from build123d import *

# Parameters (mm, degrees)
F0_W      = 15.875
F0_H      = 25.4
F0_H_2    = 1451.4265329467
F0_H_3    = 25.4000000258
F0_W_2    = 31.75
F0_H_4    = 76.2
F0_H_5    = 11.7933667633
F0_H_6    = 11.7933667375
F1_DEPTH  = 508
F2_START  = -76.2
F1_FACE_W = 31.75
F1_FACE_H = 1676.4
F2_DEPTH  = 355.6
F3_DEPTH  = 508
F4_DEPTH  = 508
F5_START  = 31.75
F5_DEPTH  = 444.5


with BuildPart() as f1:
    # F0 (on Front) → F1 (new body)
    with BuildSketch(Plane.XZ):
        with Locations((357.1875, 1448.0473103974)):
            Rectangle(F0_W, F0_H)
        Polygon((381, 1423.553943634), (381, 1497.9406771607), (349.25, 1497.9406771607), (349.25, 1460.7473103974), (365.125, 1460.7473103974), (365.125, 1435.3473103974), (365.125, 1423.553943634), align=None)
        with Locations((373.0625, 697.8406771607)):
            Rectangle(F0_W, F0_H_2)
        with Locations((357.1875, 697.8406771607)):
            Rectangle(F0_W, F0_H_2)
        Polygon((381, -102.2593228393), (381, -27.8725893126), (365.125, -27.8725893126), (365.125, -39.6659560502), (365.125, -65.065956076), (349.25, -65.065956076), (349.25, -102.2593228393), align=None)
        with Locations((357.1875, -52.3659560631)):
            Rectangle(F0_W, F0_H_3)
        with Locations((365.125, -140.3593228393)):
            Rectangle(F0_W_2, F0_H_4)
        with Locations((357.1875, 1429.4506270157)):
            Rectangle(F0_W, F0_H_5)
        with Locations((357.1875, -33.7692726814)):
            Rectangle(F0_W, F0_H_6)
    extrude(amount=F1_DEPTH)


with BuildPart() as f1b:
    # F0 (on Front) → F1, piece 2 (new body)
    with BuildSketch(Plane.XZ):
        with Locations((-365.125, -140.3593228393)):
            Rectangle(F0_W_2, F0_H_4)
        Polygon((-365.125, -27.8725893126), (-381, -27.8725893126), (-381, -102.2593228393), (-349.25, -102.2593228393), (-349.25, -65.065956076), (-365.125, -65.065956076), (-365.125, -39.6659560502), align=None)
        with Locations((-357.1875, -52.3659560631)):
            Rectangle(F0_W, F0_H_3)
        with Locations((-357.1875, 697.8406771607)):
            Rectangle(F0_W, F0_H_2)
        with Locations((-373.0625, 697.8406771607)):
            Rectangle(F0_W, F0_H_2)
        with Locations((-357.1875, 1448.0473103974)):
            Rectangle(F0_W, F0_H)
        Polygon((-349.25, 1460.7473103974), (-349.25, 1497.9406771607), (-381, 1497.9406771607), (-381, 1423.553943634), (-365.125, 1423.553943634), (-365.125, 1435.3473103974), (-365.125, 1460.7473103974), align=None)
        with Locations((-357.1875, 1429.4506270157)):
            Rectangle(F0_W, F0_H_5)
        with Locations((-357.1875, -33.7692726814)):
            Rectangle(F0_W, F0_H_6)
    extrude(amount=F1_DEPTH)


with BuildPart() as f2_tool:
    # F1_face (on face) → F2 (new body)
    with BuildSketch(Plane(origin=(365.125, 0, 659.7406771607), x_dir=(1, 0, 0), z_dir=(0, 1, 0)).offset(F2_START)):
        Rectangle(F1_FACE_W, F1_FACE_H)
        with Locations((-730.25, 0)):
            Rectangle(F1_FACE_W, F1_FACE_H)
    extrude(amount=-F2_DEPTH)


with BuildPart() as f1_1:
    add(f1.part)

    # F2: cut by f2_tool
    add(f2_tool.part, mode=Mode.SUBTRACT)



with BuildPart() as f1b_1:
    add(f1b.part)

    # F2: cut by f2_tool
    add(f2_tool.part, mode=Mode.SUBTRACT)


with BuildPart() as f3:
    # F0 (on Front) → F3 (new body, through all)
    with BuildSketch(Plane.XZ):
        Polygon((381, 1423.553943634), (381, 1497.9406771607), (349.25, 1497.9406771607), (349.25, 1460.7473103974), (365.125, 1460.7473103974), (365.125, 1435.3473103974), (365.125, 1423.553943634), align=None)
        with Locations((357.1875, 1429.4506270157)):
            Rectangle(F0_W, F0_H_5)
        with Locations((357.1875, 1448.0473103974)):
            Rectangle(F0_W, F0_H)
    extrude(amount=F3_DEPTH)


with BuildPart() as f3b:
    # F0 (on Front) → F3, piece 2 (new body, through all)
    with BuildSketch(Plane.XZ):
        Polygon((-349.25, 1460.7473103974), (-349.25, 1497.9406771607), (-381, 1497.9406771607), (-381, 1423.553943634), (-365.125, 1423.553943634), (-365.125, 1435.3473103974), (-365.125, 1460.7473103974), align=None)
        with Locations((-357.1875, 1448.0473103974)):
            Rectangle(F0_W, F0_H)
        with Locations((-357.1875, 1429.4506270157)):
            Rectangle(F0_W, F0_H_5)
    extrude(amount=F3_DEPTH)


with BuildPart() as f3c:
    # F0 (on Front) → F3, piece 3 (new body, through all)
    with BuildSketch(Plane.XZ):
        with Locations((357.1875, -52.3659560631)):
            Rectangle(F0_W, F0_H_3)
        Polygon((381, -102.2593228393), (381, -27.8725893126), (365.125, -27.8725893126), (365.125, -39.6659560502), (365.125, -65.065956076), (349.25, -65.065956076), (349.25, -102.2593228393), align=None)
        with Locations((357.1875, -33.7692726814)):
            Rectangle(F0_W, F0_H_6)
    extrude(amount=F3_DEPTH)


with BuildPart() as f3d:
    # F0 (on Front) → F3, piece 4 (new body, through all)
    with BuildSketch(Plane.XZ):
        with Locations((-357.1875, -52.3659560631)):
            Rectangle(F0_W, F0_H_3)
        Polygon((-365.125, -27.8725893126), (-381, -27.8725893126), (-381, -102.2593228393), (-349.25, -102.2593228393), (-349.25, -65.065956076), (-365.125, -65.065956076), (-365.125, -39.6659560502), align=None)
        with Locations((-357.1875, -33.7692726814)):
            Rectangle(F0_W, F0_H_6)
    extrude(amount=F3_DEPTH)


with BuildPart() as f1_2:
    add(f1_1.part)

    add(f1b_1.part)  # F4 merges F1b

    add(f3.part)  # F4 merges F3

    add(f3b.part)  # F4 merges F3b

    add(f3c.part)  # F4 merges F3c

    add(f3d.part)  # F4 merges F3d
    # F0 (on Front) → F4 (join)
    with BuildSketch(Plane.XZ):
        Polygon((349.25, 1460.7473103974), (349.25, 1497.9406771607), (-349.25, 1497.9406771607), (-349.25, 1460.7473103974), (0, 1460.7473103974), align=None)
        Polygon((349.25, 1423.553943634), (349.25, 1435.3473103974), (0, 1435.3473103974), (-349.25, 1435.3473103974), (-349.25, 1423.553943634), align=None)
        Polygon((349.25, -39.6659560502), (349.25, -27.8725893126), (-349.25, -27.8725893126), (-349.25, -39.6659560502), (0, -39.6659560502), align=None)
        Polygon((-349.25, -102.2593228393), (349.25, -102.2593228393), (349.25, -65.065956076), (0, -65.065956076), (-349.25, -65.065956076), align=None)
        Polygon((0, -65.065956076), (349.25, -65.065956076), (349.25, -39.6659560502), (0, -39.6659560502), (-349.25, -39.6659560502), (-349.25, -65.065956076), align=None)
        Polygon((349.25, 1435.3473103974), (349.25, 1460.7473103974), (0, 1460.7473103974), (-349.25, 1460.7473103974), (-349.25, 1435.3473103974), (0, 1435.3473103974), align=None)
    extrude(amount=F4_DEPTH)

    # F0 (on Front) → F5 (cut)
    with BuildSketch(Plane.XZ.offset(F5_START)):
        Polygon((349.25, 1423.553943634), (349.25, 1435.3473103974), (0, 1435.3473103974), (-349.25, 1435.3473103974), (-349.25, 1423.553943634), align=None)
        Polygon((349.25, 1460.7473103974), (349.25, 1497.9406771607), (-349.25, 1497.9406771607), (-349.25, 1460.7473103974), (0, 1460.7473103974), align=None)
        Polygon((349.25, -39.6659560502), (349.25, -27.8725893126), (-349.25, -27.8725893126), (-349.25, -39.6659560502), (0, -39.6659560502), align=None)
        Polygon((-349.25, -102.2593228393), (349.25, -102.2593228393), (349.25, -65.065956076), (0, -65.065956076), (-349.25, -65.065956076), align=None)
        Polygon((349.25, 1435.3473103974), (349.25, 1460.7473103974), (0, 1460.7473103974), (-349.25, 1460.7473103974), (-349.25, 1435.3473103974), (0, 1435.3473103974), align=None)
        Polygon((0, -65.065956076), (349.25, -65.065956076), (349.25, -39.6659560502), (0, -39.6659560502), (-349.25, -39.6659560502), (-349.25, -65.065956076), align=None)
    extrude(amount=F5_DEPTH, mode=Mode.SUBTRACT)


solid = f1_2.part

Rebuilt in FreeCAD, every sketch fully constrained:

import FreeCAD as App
import Part
import Sketcher
from FreeCAD import Vector
Q = App.Units.Quantity

doc = App.newDocument("Part")
body = doc.addObject("PartDesign::Body", "Body")

# Sketch on XZ plane
sketch1 = body.newObject("Sketcher::SketchObject", "Sketch")
sketch1.AttachmentSupport = (doc.getObject("XZ_Plane"), [""])
sketch1.MapMode = "FlatFace"
sketch1.addGeometry(Part.LineSegment(Vector(349, -178, 0), Vector(381, -178, 0)), False)
sketch1.addGeometry(Part.LineSegment(Vector(381, -178, 0), Vector(381, 1498, 0)), False)
sketch1.addGeometry(Part.LineSegment(Vector(381, 1498, 0), Vector(349, 1498, 0)), False)
sketch1.addGeometry(Part.LineSegment(Vector(349, 1498, 0), Vector(349, -178, 0)), False)
sketch1.addConstraint(Sketcher.Constraint("Coincident", 0, 2, 1, 1))
sketch1.addConstraint(Sketcher.Constraint("Coincident", 1, 2, 2, 1))
sketch1.addConstraint(Sketcher.Constraint("Coincident", 2, 2, 3, 1))
sketch1.addConstraint(Sketcher.Constraint("Coincident", 3, 2, 0, 1))
sketch1.addConstraint(Sketcher.Constraint("Horizontal", 0))
sketch1.addConstraint(Sketcher.Constraint("Vertical", 1))
sketch1.addConstraint(Sketcher.Constraint("Horizontal", 2))
sketch1.addConstraint(Sketcher.Constraint("Vertical", 3))
sketch1.addConstraint(Sketcher.Constraint("DistanceY", 1, 1, 1, 2, Q("66 in")))
sketch1.addConstraint(Sketcher.Constraint("DistanceX", -1, 1, 0, 2, Q("15 in")))
sketch1.addConstraint(Sketcher.Constraint("DistanceX", 0, 1, 0, 2, Q("1.25 in")))
sketch1.addConstraint(Sketcher.Constraint("DistanceY", 0, 2, -1, 1, 178.459323))
pad1 = body.newObject("PartDesign::Pad", "Pad")
pad1.Profile = sketch1
pad1.Length = Q("20 in")
body2 = doc.addObject("PartDesign::Body", "Body001")

# Sketch on XZ plane
sketch2 = body2.newObject("Sketcher::SketchObject", "Sketch001")
sketch2.AttachmentSupport = (doc.getObject("XZ_Plane001"), [""])
sketch2.MapMode = "FlatFace"
sketch2.addGeometry(Part.LineSegment(Vector(-381, -178, 0), Vector(-349, -178, 0)), False)
sketch2.addGeometry(Part.LineSegment(Vector(-349, -178, 0), Vector(-349, 1498, 0)), False)
sketch2.addGeometry(Part.LineSegment(Vector(-349, 1498, 0), Vector(-381, 1498, 0)), False)
sketch2.addGeometry(Part.LineSegment(Vector(-381, 1498, 0), Vector(-381, -178, 0)), False)
sketch2.addConstraint(Sketcher.Constraint("Coincident", 0, 2, 1, 1))
sketch2.addConstraint(Sketcher.Constraint("Coincident", 1, 2, 2, 1))
sketch2.addConstraint(Sketcher.Constraint("Coincident", 2, 2, 3, 1))
sketch2.addConstraint(Sketcher.Constraint("Coincident", 3, 2, 0, 1))
sketch2.addConstraint(Sketcher.Constraint("Horizontal", 0))
sketch2.addConstraint(Sketcher.Constraint("Vertical", 1))
sketch2.addConstraint(Sketcher.Constraint("Horizontal", 2))
sketch2.addConstraint(Sketcher.Constraint("Vertical", 3))
sketch2.addConstraint(Sketcher.Constraint("DistanceY", 1, 1, 1, 2, Q("66 in")))
sketch2.addConstraint(Sketcher.Constraint("DistanceX", 2, 2, -1, 1, Q("15 in")))
sketch2.addConstraint(Sketcher.Constraint("DistanceX", 0, 1, 0, 2, Q("1.25 in")))
sketch2.addConstraint(Sketcher.Constraint("DistanceY", 0, 2, -1, 1, 178.459323))
pad2 = body2.newObject("PartDesign::Pad", "Pad001")
pad2.Profile = sketch2
pad2.Length = Q("20 in")
body3 = doc.addObject("PartDesign::Body", "Body002")
body3.AllowCompound = True

# Sketch on XZ plane
sketch3 = body3.newObject("Sketcher::SketchObject", "Sketch002")
sketch3.AttachmentSupport = (doc.getObject("XZ_Plane002"), [""])
sketch3.MapMode = "FlatFace"
sketch3.AttachmentOffset = App.Placement(Vector(0, 0, 3 * 25.4), App.Rotation())
sketch3.addGeometry(Part.LineSegment(Vector(349, -178, 0), Vector(349, 1498, 0)), False)
sketch3.addGeometry(Part.LineSegment(Vector(349, 1498, 0), Vector(381, 1498, 0)), False)
sketch3.addGeometry(Part.LineSegment(Vector(381, 1498, 0), Vector(381, -178, 0)), False)
sketch3.addGeometry(Part.LineSegment(Vector(381, -178, 0), Vector(349, -178, 0)), False)
sketch3.addGeometry(Part.LineSegment(Vector(-381, -178, 0), Vector(-381, 1498, 0)), False)
sketch3.addGeometry(Part.LineSegment(Vector(-381, 1498, 0), Vector(-349, 1498, 0)), False)
sketch3.addGeometry(Part.LineSegment(Vector(-349, 1498, 0), Vector(-349, -178, 0)), False)
sketch3.addGeometry(Part.LineSegment(Vector(-349, -178, 0), Vector(-381, -178, 0)), False)
sketch3.addConstraint(Sketcher.Constraint("Coincident", 0, 2, 1, 1))
sketch3.addConstraint(Sketcher.Constraint("Coincident", 1, 2, 2, 1))
sketch3.addConstraint(Sketcher.Constraint("Coincident", 2, 2, 3, 1))
sketch3.addConstraint(Sketcher.Constraint("Coincident", 3, 2, 0, 1))
sketch3.addConstraint(Sketcher.Constraint("Coincident", 4, 2, 5, 1))
sketch3.addConstraint(Sketcher.Constraint("Coincident", 5, 2, 6, 1))
sketch3.addConstraint(Sketcher.Constraint("Coincident", 6, 2, 7, 1))
sketch3.addConstraint(Sketcher.Constraint("Coincident", 7, 2, 4, 1))
sketch3.addConstraint(Sketcher.Constraint("Vertical", 0))
sketch3.addConstraint(Sketcher.Constraint("Horizontal", 1))
sketch3.addConstraint(Sketcher.Constraint("Vertical", 2))
sketch3.addConstraint(Sketcher.Constraint("Horizontal", 3))
sketch3.addConstraint(Sketcher.Constraint("Vertical", 4))
sketch3.addConstraint(Sketcher.Constraint("Horizontal", 5))
sketch3.addConstraint(Sketcher.Constraint("Vertical", 6))
sketch3.addConstraint(Sketcher.Constraint("Horizontal", 7))
sketch3.addConstraint(Sketcher.Constraint("Symmetric", 1, 2, 4, 2, -2))
sketch3.addConstraint(Sketcher.Constraint("Symmetric", 3, 2, 6, 2, -2))
sketch3.addConstraint(Sketcher.Constraint("DistanceY", 0, 1, 0, 2, Q("66 in")))
sketch3.addConstraint(Sketcher.Constraint("DistanceX", -1, 1, 1, 2, Q("15 in")))
sketch3.addConstraint(Sketcher.Constraint("DistanceX", 1, 1, 1, 2, Q("1.25 in")))
sketch3.addConstraint(Sketcher.Constraint("DistanceY", -1, 1, 0, 2, 1497.940677))
pad3 = body3.newObject("PartDesign::Pad", "Pad002")
pad3.Profile = sketch3
pad3.Length = Q("14 in")
body.AllowCompound = True
doc.recompute()

body4 = doc.addObject("PartDesign::Body", "Body003")
body4.BaseFeature = body3
boolean = body.newObject("PartDesign::Boolean", "Boolean")
boolean.Type = "Cut"
boolean.addObjects([body4])
doc.recompute()
body2.AllowCompound = True
doc.recompute()

boolean2 = body2.newObject("PartDesign::Boolean", "Boolean001")
boolean2.Type = "Cut"
boolean2.addObjects([body3])
body5 = doc.addObject("PartDesign::Body", "Body004")

# Sketch on XZ plane
sketch4 = body5.newObject("Sketcher::SketchObject", "Sketch003")
sketch4.AttachmentSupport = (doc.getObject("XZ_Plane004"), [""])
sketch4.MapMode = "FlatFace"
sketch4.addGeometry(Part.LineSegment(Vector(381, 1424, 0), Vector(381, 1498, 0)), False)
sketch4.addGeometry(Part.LineSegment(Vector(381, 1498, 0), Vector(349, 1498, 0)), False)
sketch4.addGeometry(Part.LineSegment(Vector(349, 1498, 0), Vector(349, 1424, 0)), False)
sketch4.addGeometry(Part.LineSegment(Vector(349, 1424, 0), Vector(365, 1424, 0)), False)
sketch4.addGeometry(Part.LineSegment(Vector(365, 1424, 0), Vector(381, 1424, 0)), False)
sketch4.addConstraint(Sketcher.Constraint("Coincident", 0, 2, 1, 1))
sketch4.addConstraint(Sketcher.Constraint("Coincident", 1, 2, 2, 1))
sketch4.addConstraint(Sketcher.Constraint("Coincident", 2, 2, 3, 1))
sketch4.addConstraint(Sketcher.Constraint("Coincident", 3, 2, 4, 1))
sketch4.addConstraint(Sketcher.Constraint("Coincident", 4, 2, 0, 1))
sketch4.addConstraint(Sketcher.Constraint("Vertical", 0))
sketch4.addConstraint(Sketcher.Constraint("Horizontal", 1))
sketch4.addConstraint(Sketcher.Constraint("Vertical", 2))
sketch4.addConstraint(Sketcher.Constraint("Horizontal", 3))
sketch4.addConstraint(Sketcher.Constraint("Horizontal", 4))
sketch4.addConstraint(Sketcher.Constraint("Equal", 3, 4))
sketch4.addConstraint(Sketcher.Constraint("DistanceX", -1, 1, 0, 2, Q("15 in")))
sketch4.addConstraint(Sketcher.Constraint("DistanceX", 1, 2, 1, 1, Q("1.25 in")))
sketch4.addConstraint(Sketcher.Constraint("DistanceY", 0, 1, 0, 2, 74.386734))
sketch4.addConstraint(Sketcher.Constraint("DistanceY", -1, 1, 0, 2, 1497.940677))
pad4 = body5.newObject("PartDesign::Pad", "Pad003")
pad4.Profile = sketch4
pad4.Length = Q("20 in")
body6 = doc.addObject("PartDesign::Body", "Body005")

# Sketch on XZ plane
sketch5 = body6.newObject("Sketcher::SketchObject", "Sketch004")
sketch5.AttachmentSupport = (doc.getObject("XZ_Plane005"), [""])
sketch5.MapMode = "FlatFace"
sketch5.addGeometry(Part.LineSegment(Vector(-349, 1498, 0), Vector(-381, 1498, 0)), False)
sketch5.addGeometry(Part.LineSegment(Vector(-381, 1498, 0), Vector(-381, 1424, 0)), False)
sketch5.addGeometry(Part.LineSegment(Vector(-381, 1424, 0), Vector(-365, 1424, 0)), False)
sketch5.addGeometry(Part.LineSegment(Vector(-365, 1424, 0), Vector(-349, 1424, 0)), False)
sketch5.addGeometry(Part.LineSegment(Vector(-349, 1424, 0), Vector(-349, 1498, 0)), False)
sketch5.addConstraint(Sketcher.Constraint("Coincident", 0, 2, 1, 1))
sketch5.addConstraint(Sketcher.Constraint("Coincident", 1, 2, 2, 1))
sketch5.addConstraint(Sketcher.Constraint("Coincident", 2, 2, 3, 1))
sketch5.addConstraint(Sketcher.Constraint("Coincident", 3, 2, 4, 1))
sketch5.addConstraint(Sketcher.Constraint("Coincident", 4, 2, 0, 1))
sketch5.addConstraint(Sketcher.Constraint("Horizontal", 0))
sketch5.addConstraint(Sketcher.Constraint("Vertical", 1))
sketch5.addConstraint(Sketcher.Constraint("Horizontal", 2))
sketch5.addConstraint(Sketcher.Constraint("Horizontal", 3))
sketch5.addConstraint(Sketcher.Constraint("Vertical", 4))
sketch5.addConstraint(Sketcher.Constraint("Equal", 2, 3))
sketch5.addConstraint(Sketcher.Constraint("DistanceX", 0, 2, -1, 1, Q("15 in")))
sketch5.addConstraint(Sketcher.Constraint("DistanceX", 0, 2, 0, 1, Q("1.25 in")))
sketch5.addConstraint(Sketcher.Constraint("DistanceY", 1, 2, 1, 1, 74.386734))
sketch5.addConstraint(Sketcher.Constraint("DistanceY", -1, 1, 0, 2, 1497.940677))
pad5 = body6.newObject("PartDesign::Pad", "Pad004")
pad5.Profile = sketch5
pad5.Length = Q("20 in")
body7 = doc.addObject("PartDesign::Body", "Body006")

# Sketch on XZ plane
sketch6 = body7.newObject("Sketcher::SketchObject", "Sketch005")
sketch6.AttachmentSupport = (doc.getObject("XZ_Plane006"), [""])
sketch6.MapMode = "FlatFace"
sketch6.addGeometry(Part.LineSegment(Vector(349, -102, 0), Vector(381, -102, 0)), False)
sketch6.addGeometry(Part.LineSegment(Vector(381, -102, 0), Vector(381, -28, 0)), False)
sketch6.addGeometry(Part.LineSegment(Vector(381, -28, 0), Vector(365, -28, 0)), False)
sketch6.addGeometry(Part.LineSegment(Vector(365, -28, 0), Vector(349, -28, 0)), False)
sketch6.addGeometry(Part.LineSegment(Vector(349, -28, 0), Vector(349, -102, 0)), False)
sketch6.addConstraint(Sketcher.Constraint("Coincident", 0, 2, 1, 1))
sketch6.addConstraint(Sketcher.Constraint("Coincident", 1, 2, 2, 1))
sketch6.addConstraint(Sketcher.Constraint("Coincident", 2, 2, 3, 1))
sketch6.addConstraint(Sketcher.Constraint("Coincident", 3, 2, 4, 1))
sketch6.addConstraint(Sketcher.Constraint("Coincident", 4, 2, 0, 1))
sketch6.addConstraint(Sketcher.Constraint("Horizontal", 0))
sketch6.addConstraint(Sketcher.Constraint("Vertical", 1))
sketch6.addConstraint(Sketcher.Constraint("Horizontal", 2))
sketch6.addConstraint(Sketcher.Constraint("Horizontal", 3))
sketch6.addConstraint(Sketcher.Constraint("Vertical", 4))
sketch6.addConstraint(Sketcher.Constraint("Equal", 2, 3))
sketch6.addConstraint(Sketcher.Constraint("DistanceX", -1, 1, 0, 2, Q("15 in")))
sketch6.addConstraint(Sketcher.Constraint("DistanceX", 0, 1, 0, 2, Q("1.25 in")))
sketch6.addConstraint(Sketcher.Constraint("DistanceY", 1, 1, 1, 2, 74.386734))
sketch6.addConstraint(Sketcher.Constraint("DistanceY", 1, 2, -1, 1, 27.872589))
pad6 = body7.newObject("PartDesign::Pad", "Pad005")
pad6.Profile = sketch6
pad6.Length = Q("20 in")
body8 = doc.addObject("PartDesign::Body", "Body007")

# Sketch on XZ plane
sketch7 = body8.newObject("Sketcher::SketchObject", "Sketch006")
sketch7.AttachmentSupport = (doc.getObject("XZ_Plane007"), [""])
sketch7.MapMode = "FlatFace"
sketch7.addGeometry(Part.LineSegment(Vector(-365, -28, 0), Vector(-381, -28, 0)), False)
sketch7.addGeometry(Part.LineSegment(Vector(-381, -28, 0), Vector(-381, -102, 0)), False)
sketch7.addGeometry(Part.LineSegment(Vector(-381, -102, 0), Vector(-349, -102, 0)), False)
sketch7.addGeometry(Part.LineSegment(Vector(-349, -102, 0), Vector(-349, -28, 0)), False)
sketch7.addGeometry(Part.LineSegment(Vector(-349, -28, 0), Vector(-365, -28, 0)), False)
sketch7.addConstraint(Sketcher.Constraint("Coincident", 0, 2, 1, 1))
sketch7.addConstraint(Sketcher.Constraint("Coincident", 1, 2, 2, 1))
sketch7.addConstraint(Sketcher.Constraint("Coincident", 2, 2, 3, 1))
sketch7.addConstraint(Sketcher.Constraint("Coincident", 3, 2, 4, 1))
sketch7.addConstraint(Sketcher.Constraint("Coincident", 4, 2, 0, 1))
sketch7.addConstraint(Sketcher.Constraint("Horizontal", 0))
sketch7.addConstraint(Sketcher.Constraint("Vertical", 1))
sketch7.addConstraint(Sketcher.Constraint("Horizontal", 2))
sketch7.addConstraint(Sketcher.Constraint("Vertical", 3))
sketch7.addConstraint(Sketcher.Constraint("Horizontal", 4))
sketch7.addConstraint(Sketcher.Constraint("Equal", 0, 4))
sketch7.addConstraint(Sketcher.Constraint("DistanceX", 0, 2, -1, 1, Q("15 in")))
sketch7.addConstraint(Sketcher.Constraint("DistanceX", 2, 1, 2, 2, Q("1.25 in")))
sketch7.addConstraint(Sketcher.Constraint("DistanceY", 1, 2, 1, 1, 74.386734))
sketch7.addConstraint(Sketcher.Constraint("DistanceY", 0, 2, -1, 1, 27.872589))
pad7 = body8.newObject("PartDesign::Pad", "Pad006")
pad7.Profile = sketch7
pad7.Length = Q("20 in")
body.AllowCompound = True
doc.recompute()

boolean3 = body.newObject("PartDesign::Boolean", "Boolean002")
boolean3.Type = "Fuse"
boolean3.addObjects([body2])
doc.recompute()

boolean4 = body.newObject("PartDesign::Boolean", "Boolean003")
boolean4.Type = "Fuse"
boolean4.addObjects([body5])
doc.recompute()

boolean5 = body.newObject("PartDesign::Boolean", "Boolean004")
boolean5.Type = "Fuse"
boolean5.addObjects([body6])
doc.recompute()

boolean6 = body.newObject("PartDesign::Boolean", "Boolean005")
boolean6.Type = "Fuse"
boolean6.addObjects([body7])
doc.recompute()

boolean7 = body.newObject("PartDesign::Boolean", "Boolean006")
boolean7.Type = "Fuse"
boolean7.addObjects([body8])

# Sketch on XZ plane
sketch8 = body.newObject("Sketcher::SketchObject", "Sketch007")
sketch8.AttachmentSupport = (doc.getObject("XZ_Plane"), [""])
sketch8.MapMode = "FlatFace"
sketch8.addGeometry(Part.LineSegment(Vector(349, 1498, 0), Vector(-349, 1498, 0)), False)
sketch8.addGeometry(Part.LineSegment(Vector(-349, 1498, 0), Vector(-349, 1424, 0)), False)
sketch8.addGeometry(Part.LineSegment(Vector(-349, 1424, 0), Vector(349, 1424, 0)), False)
sketch8.addGeometry(Part.LineSegment(Vector(349, 1424, 0), Vector(349, 1498, 0)), False)
sketch8.addGeometry(Part.LineSegment(Vector(349, -28, 0), Vector(-349, -28, 0)), False)
sketch8.addGeometry(Part.LineSegment(Vector(-349, -28, 0), Vector(-349, -102, 0)), False)
sketch8.addGeometry(Part.LineSegment(Vector(-349, -102, 0), Vector(349, -102, 0)), False)
sketch8.addGeometry(Part.LineSegment(Vector(349, -102, 0), Vector(349, -28, 0)), False)
sketch8.addConstraint(Sketcher.Constraint("Coincident", 0, 2, 1, 1))
sketch8.addConstraint(Sketcher.Constraint("Coincident", 1, 2, 2, 1))
sketch8.addConstraint(Sketcher.Constraint("Coincident", 2, 2, 3, 1))
sketch8.addConstraint(Sketcher.Constraint("Coincident", 3, 2, 0, 1))
sketch8.addConstraint(Sketcher.Constraint("Coincident", 4, 2, 5, 1))
sketch8.addConstraint(Sketcher.Constraint("Coincident", 5, 2, 6, 1))
sketch8.addConstraint(Sketcher.Constraint("Coincident", 6, 2, 7, 1))
sketch8.addConstraint(Sketcher.Constraint("Coincident", 7, 2, 4, 1))
sketch8.addConstraint(Sketcher.Constraint("Horizontal", 0))
sketch8.addConstraint(Sketcher.Constraint("Vertical", 1))
sketch8.addConstraint(Sketcher.Constraint("Horizontal", 2))
sketch8.addConstraint(Sketcher.Constraint("Vertical", 3))
sketch8.addConstraint(Sketcher.Constraint("Horizontal", 4))
sketch8.addConstraint(Sketcher.Constraint("Vertical", 5))
sketch8.addConstraint(Sketcher.Constraint("Horizontal", 6))
sketch8.addConstraint(Sketcher.Constraint("Vertical", 7))
sketch8.addConstraint(Sketcher.Constraint("Vertical", 1, 2, 4, 2))
sketch8.addConstraint(Sketcher.Constraint("Vertical", 3, 2, 6, 2))
sketch8.addConstraint(Sketcher.Constraint("Equal", 3, 5))
sketch8.addConstraint(Sketcher.Constraint("DistanceX", 0, 2, 0, 1, Q("27.5 in")))
sketch8.addConstraint(Sketcher.Constraint("DistanceY", 5, 2, 0, 2, Q("63 in")))
sketch8.addConstraint(Sketcher.Constraint("DistanceX", 0, 2, -1, 1, Q("13.75 in")))
sketch8.addConstraint(Sketcher.Constraint("DistanceY", 1, 2, 1, 1, 74.386734))
sketch8.addConstraint(Sketcher.Constraint("DistanceY", 4, 2, -1, 1, 27.872589))
pad8 = body.newObject("PartDesign::Pad", "Pad007")
pad8.Profile = sketch8
pad8.Length = Q("20 in")

# Sketch on XZ plane
sketch9 = body.newObject("Sketcher::SketchObject", "Sketch008")
sketch9.AttachmentSupport = (doc.getObject("XZ_Plane"), [""])
sketch9.MapMode = "FlatFace"
sketch9.AttachmentOffset = App.Placement(Vector(0, 0, 1.25 * 25.4), App.Rotation())
sketch9.addGeometry(Part.LineSegment(Vector(349, 1424, 0), Vector(349, 1498, 0)), False)
sketch9.addGeometry(Part.LineSegment(Vector(349, 1498, 0), Vector(-349, 1498, 0)), False)
sketch9.addGeometry(Part.LineSegment(Vector(-349, 1498, 0), Vector(-349, 1424, 0)), False)
sketch9.addGeometry(Part.LineSegment(Vector(-349, 1424, 0), Vector(349, 1424, 0)), False)
sketch9.addGeometry(Part.LineSegment(Vector(349, -28, 0), Vector(-349, -28, 0)), False)
sketch9.addGeometry(Part.LineSegment(Vector(-349, -28, 0), Vector(-349, -102, 0)), False)
sketch9.addGeometry(Part.LineSegment(Vector(-349, -102, 0), Vector(349, -102, 0)), False)
sketch9.addGeometry(Part.LineSegment(Vector(349, -102, 0), Vector(349, -28, 0)), False)
sketch9.addConstraint(Sketcher.Constraint("Coincident", 0, 2, 1, 1))
sketch9.addConstraint(Sketcher.Constraint("Coincident", 1, 2, 2, 1))
sketch9.addConstraint(Sketcher.Constraint("Coincident", 2, 2, 3, 1))
sketch9.addConstraint(Sketcher.Constraint("Coincident", 3, 2, 0, 1))
sketch9.addConstraint(Sketcher.Constraint("Coincident", 4, 2, 5, 1))
sketch9.addConstraint(Sketcher.Constraint("Coincident", 5, 2, 6, 1))
sketch9.addConstraint(Sketcher.Constraint("Coincident", 6, 2, 7, 1))
sketch9.addConstraint(Sketcher.Constraint("Coincident", 7, 2, 4, 1))
sketch9.addConstraint(Sketcher.Constraint("Vertical", 0))
sketch9.addConstraint(Sketcher.Constraint("Horizontal", 1))
sketch9.addConstraint(Sketcher.Constraint("Vertical", 2))
sketch9.addConstraint(Sketcher.Constraint("Horizontal", 3))
sketch9.addConstraint(Sketcher.Constraint("Horizontal", 4))
sketch9.addConstraint(Sketcher.Constraint("Vertical", 5))
sketch9.addConstraint(Sketcher.Constraint("Horizontal", 6))
sketch9.addConstraint(Sketcher.Constraint("Vertical", 7))
sketch9.addConstraint(Sketcher.Constraint("Vertical", 2, 2, 4, 2))
sketch9.addConstraint(Sketcher.Constraint("Vertical", 3, 2, 6, 2))
sketch9.addConstraint(Sketcher.Constraint("Equal", 2, 5))
sketch9.addConstraint(Sketcher.Constraint("DistanceX", 1, 2, 1, 1, Q("27.5 in")))
sketch9.addConstraint(Sketcher.Constraint("DistanceY", 5, 2, 1, 2, Q("63 in")))
sketch9.addConstraint(Sketcher.Constraint("DistanceX", -1, 1, 0, 2, Q("13.75 in")))
sketch9.addConstraint(Sketcher.Constraint("DistanceY", 0, 1, 0, 2, 74.386734))
sketch9.addConstraint(Sketcher.Constraint("DistanceY", 4, 2, -1, 1, 27.872589))
pocket1 = body.newObject("PartDesign::Pocket", "Pocket")
pocket1.Profile = sketch9
pocket1.Length = Q("17.5 in")
pocket1.Reversed = True

doc.recompute()
